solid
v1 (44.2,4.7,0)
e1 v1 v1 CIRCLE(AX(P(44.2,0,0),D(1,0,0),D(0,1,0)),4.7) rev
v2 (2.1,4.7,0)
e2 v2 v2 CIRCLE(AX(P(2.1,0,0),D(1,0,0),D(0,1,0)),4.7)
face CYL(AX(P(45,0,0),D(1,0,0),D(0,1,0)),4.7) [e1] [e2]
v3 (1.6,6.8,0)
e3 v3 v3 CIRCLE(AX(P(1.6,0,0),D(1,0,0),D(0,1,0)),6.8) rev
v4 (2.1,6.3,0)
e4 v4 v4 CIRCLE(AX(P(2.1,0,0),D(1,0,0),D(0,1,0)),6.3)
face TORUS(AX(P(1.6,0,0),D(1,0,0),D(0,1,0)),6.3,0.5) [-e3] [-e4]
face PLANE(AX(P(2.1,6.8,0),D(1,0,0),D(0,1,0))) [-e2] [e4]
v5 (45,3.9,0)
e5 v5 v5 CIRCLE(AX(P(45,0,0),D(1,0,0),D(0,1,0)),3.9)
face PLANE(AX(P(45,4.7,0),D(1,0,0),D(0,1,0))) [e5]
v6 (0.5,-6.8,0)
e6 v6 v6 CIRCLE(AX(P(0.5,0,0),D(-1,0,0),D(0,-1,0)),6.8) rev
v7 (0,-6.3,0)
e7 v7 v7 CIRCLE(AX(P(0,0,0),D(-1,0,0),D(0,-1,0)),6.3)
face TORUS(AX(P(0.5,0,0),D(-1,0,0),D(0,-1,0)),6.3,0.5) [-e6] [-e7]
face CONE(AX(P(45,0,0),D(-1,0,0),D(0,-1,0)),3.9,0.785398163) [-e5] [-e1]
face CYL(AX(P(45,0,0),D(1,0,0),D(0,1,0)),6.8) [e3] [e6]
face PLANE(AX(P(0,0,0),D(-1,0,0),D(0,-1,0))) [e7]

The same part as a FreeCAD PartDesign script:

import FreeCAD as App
import Part
import Sketcher
Q = App.Units.Quantity


def edges_at(feature, points):
    """Names of the edges that pass closest to the given points."""
    edges = feature.Shape.Edges
    near = lambda p: min(range(len(edges)), key=lambda i: edges[i].distToShape(Part.Vertex(*p))[0])
    return sorted({f"Edge{near(p) + 1}" for p in points})

doc = App.newDocument("Part")
body = doc.addObject("PartDesign::Body", "Body")

# Sketch on XY plane
sketch1 = body.newObject("Sketcher::SketchObject", "Sketch")
sketch1.AttachmentSupport = (doc.getObject("XY_Plane"), [""])
sketch1.MapMode = "FlatFace"
sketch1.addGeometry(Part.LineSegment(App.Vector(0, 6.8, 0), App.Vector(0, 0, 0)), False)
sketch1.addGeometry(Part.LineSegment(App.Vector(0, 0, 0), App.Vector(45, 0, 0)), False)
sketch1.addGeometry(Part.LineSegment(App.Vector(45, 0, 0), App.Vector(45, 4.7, 0)), False)
sketch1.addGeometry(Part.LineSegment(App.Vector(45, 4.7, 0), App.Vector(2.1, 4.7, 0)), False)
sketch1.addGeometry(Part.LineSegment(App.Vector(2.1, 4.7, 0), App.Vector(2.1, 6.8, 0)), False)
sketch1.addGeometry(Part.LineSegment(App.Vector(2.1, 6.8, 0), App.Vector(0, 6.8, 0)), False)
sketch1.addConstraint(Sketcher.Constraint("Coincident", 0, 2, 1, 1))
sketch1.addConstraint(Sketcher.Constraint("Coincident", 1, 2, 2, 1))
sketch1.addConstraint(Sketcher.Constraint("Coincident", 2, 2, 3, 1))
sketch1.addConstraint(Sketcher.Constraint("Coincident", 3, 2, 4, 1))
sketch1.addConstraint(Sketcher.Constraint("Coincident", 4, 2, 5, 1))
sketch1.addConstraint(Sketcher.Constraint("Coincident", 5, 2, 0, 1))
sketch1.addConstraint(Sketcher.Constraint("Vertical", 0))
sketch1.addConstraint(Sketcher.Constraint("Horizontal", 1))
sketch1.addConstraint(Sketcher.Constraint("Vertical", 2))
sketch1.addConstraint(Sketcher.Constraint("Horizontal", 3))
sketch1.addConstraint(Sketcher.Constraint("Vertical", 4))
sketch1.addConstraint(Sketcher.Constraint("Horizontal", 5))
sketch1.addConstraint(Sketcher.Constraint("Coincident", 0, 2, -1, 1))
sketch1.addConstraint(Sketcher.Constraint("Equal", 5, 4))
sketch1.addConstraint(Sketcher.Constraint("DistanceX", 1, 1, 1, 2, Q("45 mm")))
sketch1.addConstraint(Sketcher.Constraint("DistanceX", 3, 2, 3, 1, Q("42.9 mm")))
sketch1.addConstraint(Sketcher.Constraint("DistanceY", 0, 2, 0, 1, Q("6.8 mm")))
revolution = body.newObject("PartDesign::Revolution", "Revolution")
revolution.Profile = sketch1
revolution.ReferenceAxis = (sketch1, ["H_Axis"])
revolution.Angle = 360
doc.recompute()

fillet = body.newObject("PartDesign::Fillet", "Fillet")
fillet.Base = (revolution, edges_at(revolution, [(2.1, -6.8, 0), (0, -6.8, 0)]))
fillet.Radius = 0.5
doc.recompute()

chamfer = body.newObject("PartDesign::Chamfer", "Chamfer")
chamfer.Base = (fillet, edges_at(fillet, [(45, -4.7, 0)]))
chamfer.Size = 0.8

doc.recompute()
